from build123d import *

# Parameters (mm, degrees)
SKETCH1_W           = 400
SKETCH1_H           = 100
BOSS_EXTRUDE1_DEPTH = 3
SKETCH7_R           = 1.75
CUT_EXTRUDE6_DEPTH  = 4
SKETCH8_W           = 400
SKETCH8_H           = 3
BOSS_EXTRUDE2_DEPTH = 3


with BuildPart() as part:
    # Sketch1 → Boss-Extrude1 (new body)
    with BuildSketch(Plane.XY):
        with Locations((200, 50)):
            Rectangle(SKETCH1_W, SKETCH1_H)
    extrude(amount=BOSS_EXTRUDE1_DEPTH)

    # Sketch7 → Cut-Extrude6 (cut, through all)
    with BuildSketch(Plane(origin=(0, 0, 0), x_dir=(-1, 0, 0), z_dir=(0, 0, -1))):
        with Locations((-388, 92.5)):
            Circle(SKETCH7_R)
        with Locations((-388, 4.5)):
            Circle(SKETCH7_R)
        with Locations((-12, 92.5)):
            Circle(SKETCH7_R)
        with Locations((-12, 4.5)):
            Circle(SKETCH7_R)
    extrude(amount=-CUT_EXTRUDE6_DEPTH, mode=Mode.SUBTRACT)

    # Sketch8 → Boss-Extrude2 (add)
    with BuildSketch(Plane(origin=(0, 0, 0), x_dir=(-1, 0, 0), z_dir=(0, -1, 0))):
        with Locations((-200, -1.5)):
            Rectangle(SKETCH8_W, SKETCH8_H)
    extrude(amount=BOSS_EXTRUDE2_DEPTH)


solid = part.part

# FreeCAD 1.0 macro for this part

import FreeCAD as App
import Part
import Sketcher

V = App.Vector


def add_polygon(sketch, points):
    """Adds a closed chain of lines whose ends are joined by coincident constraints."""
    first, n = sketch.GeometryCount, len(points)
    for a, b in zip(points, points[1:] + points[:1]):
        sketch.addGeometry(Part.LineSegment(App.Vector(*a, 0), App.Vector(*b, 0)), False)
    for i in range(n):
        sketch.addConstraint(Sketcher.Constraint("Coincident", first + i, 2, first + (i + 1) % n, 1))

doc = App.newDocument("Part")
params = doc.addObject("Spreadsheet::Sheet", "Params")
for row, (alias, value) in enumerate([
    ("sketch1_width", "400 mm"),
    ("sketch1_height", "100 mm"),
    ("pad1_length", "3 mm"),
    ("sketch2_diameter", "3.5 mm"),
    ("sketch3_width", "400 mm"),
    ("sketch3_height", "3 mm"),
    ("pad2_length", "3 mm"),
], start=1):
    params.set(f"A{row}", alias)
    params.set(f"B{row}", "=" + value)
    params.setAlias(f"B{row}", alias)

body = doc.addObject("PartDesign::Body", "Body")

# Sketch on XY plane
sketch1 = doc.addObject("Sketcher::SketchObject", "Sketch")
body.addObject(sketch1)
sketch1.AttachmentSupport = (doc.XY_Plane, [""])
sketch1.MapMode = "FlatFace"
add_polygon(sketch1, [(0, 100), (0, 0), (400, 0), (400, 100)])  # lines 0-3
sketch1.addConstraint([
    Sketcher.Constraint("Vertical", 0),
    Sketcher.Constraint("Horizontal", 1),
    Sketcher.Constraint("Vertical", 2),
    Sketcher.Constraint("Horizontal", 3),
    Sketcher.Constraint("Coincident", 0, 2, -1, 1),
    Sketcher.Constraint("DistanceX", 1, 1, 1, 2, 400.0),
    Sketcher.Constraint("DistanceY", 0, 2, 0, 1, 100.0),
])
sketch1.setExpression("Constraints[9]", "Params.sketch1_width")
sketch1.setExpression("Constraints[10]", "Params.sketch1_height")
pad1 = doc.addObject("PartDesign::Pad", "Pad")
body.addObject(pad1)
pad1.Profile = sketch1
pad1.setExpression("Length", "Params.pad1_length")

# Sketch on XY plane
sketch2 = doc.addObject("Sketcher::SketchObject", "Sketch001")
body.addObject(sketch2)
sketch2.AttachmentSupport = (doc.XY_Plane, [""])
sketch2.MapMode = "FlatFace"
sketch2.addGeometry([
    Part.Circle(V(388, 92.5, 0), V(0, 0, 1), 1.8),
    Part.Circle(V(388, 4.5, 0), V(0, 0, 1), 1.8),
    Part.Circle(V(12, 92.5, 0), V(0, 0, 1), 1.8),
    Part.Circle(V(12, 4.5, 0), V(0, 0, 1), 1.8),
], False)
sketch2.addConstraint([
    Sketcher.Constraint("Equal", 0, 1),
    Sketcher.Constraint("Equal", 1, 2),
    Sketcher.Constraint("Equal", 2, 3),
    Sketcher.Constraint("Horizontal", 0, 3, 2, 3),
    Sketcher.Constraint("Horizontal", 1, 3, 3, 3),
    Sketcher.Constraint("Vertical", 0, 3, 1, 3),
    Sketcher.Constraint("Vertical", 2, 3, 3, 3),
    Sketcher.Constraint("Diameter", 0, 3.5),
    Sketcher.Constraint("DistanceX", -1, 1, 0, 3, 388.0),
    Sketcher.Constraint("DistanceX", -1, 1, 2, 3, 12.0),
    Sketcher.Constraint("DistanceY", 1, 3, 0, 3, 88.0),
    Sketcher.Constraint("DistanceY", -1, 1, 0, 3, 92.5),
])
sketch2.setExpression("Constraints[7]", "Params.sketch2_diameter")
pocket1 = doc.addObject("PartDesign::Pocket", "Pocket")
body.addObject(pocket1)
pocket1.Profile = sketch2
pocket1.Type = "ThroughAll"
pocket1.Reversed = True

# Sketch on XZ plane
sketch3 = doc.addObject("Sketcher::SketchObject", "Sketch002")
body.addObject(sketch3)
sketch3.AttachmentSupport = (doc.XZ_Plane, [""])
sketch3.MapMode = "FlatFace"
add_polygon(sketch3, [(400, 0), (400, 3), (0, 3), (0, 0)])  # lines 0-3
sketch3.addConstraint([
    Sketcher.Constraint("Vertical", 0),
    Sketcher.Constraint("Horizontal", 1),
    Sketcher.Constraint("Vertical", 2),
    Sketcher.Constraint("Horizontal", 3),
    Sketcher.Constraint("Coincident", 2, 2, -1, 1),
    Sketcher.Constraint("DistanceX", 1, 2, 1, 1, 400.0),
    Sketcher.Constraint("DistanceY", 0, 1, 0, 2, 3.0),
])
sketch3.setExpression("Constraints[9]", "Params.sketch3_width")
sketch3.setExpression("Constraints[10]", "Params.sketch3_height")
pad2 = doc.addObject("PartDesign::Pad", "Pad001")
body.addObject(pad2)
pad2.Profile = sketch3
pad2.setExpression("Length", "Params.pad2_length")

doc.recompute()
